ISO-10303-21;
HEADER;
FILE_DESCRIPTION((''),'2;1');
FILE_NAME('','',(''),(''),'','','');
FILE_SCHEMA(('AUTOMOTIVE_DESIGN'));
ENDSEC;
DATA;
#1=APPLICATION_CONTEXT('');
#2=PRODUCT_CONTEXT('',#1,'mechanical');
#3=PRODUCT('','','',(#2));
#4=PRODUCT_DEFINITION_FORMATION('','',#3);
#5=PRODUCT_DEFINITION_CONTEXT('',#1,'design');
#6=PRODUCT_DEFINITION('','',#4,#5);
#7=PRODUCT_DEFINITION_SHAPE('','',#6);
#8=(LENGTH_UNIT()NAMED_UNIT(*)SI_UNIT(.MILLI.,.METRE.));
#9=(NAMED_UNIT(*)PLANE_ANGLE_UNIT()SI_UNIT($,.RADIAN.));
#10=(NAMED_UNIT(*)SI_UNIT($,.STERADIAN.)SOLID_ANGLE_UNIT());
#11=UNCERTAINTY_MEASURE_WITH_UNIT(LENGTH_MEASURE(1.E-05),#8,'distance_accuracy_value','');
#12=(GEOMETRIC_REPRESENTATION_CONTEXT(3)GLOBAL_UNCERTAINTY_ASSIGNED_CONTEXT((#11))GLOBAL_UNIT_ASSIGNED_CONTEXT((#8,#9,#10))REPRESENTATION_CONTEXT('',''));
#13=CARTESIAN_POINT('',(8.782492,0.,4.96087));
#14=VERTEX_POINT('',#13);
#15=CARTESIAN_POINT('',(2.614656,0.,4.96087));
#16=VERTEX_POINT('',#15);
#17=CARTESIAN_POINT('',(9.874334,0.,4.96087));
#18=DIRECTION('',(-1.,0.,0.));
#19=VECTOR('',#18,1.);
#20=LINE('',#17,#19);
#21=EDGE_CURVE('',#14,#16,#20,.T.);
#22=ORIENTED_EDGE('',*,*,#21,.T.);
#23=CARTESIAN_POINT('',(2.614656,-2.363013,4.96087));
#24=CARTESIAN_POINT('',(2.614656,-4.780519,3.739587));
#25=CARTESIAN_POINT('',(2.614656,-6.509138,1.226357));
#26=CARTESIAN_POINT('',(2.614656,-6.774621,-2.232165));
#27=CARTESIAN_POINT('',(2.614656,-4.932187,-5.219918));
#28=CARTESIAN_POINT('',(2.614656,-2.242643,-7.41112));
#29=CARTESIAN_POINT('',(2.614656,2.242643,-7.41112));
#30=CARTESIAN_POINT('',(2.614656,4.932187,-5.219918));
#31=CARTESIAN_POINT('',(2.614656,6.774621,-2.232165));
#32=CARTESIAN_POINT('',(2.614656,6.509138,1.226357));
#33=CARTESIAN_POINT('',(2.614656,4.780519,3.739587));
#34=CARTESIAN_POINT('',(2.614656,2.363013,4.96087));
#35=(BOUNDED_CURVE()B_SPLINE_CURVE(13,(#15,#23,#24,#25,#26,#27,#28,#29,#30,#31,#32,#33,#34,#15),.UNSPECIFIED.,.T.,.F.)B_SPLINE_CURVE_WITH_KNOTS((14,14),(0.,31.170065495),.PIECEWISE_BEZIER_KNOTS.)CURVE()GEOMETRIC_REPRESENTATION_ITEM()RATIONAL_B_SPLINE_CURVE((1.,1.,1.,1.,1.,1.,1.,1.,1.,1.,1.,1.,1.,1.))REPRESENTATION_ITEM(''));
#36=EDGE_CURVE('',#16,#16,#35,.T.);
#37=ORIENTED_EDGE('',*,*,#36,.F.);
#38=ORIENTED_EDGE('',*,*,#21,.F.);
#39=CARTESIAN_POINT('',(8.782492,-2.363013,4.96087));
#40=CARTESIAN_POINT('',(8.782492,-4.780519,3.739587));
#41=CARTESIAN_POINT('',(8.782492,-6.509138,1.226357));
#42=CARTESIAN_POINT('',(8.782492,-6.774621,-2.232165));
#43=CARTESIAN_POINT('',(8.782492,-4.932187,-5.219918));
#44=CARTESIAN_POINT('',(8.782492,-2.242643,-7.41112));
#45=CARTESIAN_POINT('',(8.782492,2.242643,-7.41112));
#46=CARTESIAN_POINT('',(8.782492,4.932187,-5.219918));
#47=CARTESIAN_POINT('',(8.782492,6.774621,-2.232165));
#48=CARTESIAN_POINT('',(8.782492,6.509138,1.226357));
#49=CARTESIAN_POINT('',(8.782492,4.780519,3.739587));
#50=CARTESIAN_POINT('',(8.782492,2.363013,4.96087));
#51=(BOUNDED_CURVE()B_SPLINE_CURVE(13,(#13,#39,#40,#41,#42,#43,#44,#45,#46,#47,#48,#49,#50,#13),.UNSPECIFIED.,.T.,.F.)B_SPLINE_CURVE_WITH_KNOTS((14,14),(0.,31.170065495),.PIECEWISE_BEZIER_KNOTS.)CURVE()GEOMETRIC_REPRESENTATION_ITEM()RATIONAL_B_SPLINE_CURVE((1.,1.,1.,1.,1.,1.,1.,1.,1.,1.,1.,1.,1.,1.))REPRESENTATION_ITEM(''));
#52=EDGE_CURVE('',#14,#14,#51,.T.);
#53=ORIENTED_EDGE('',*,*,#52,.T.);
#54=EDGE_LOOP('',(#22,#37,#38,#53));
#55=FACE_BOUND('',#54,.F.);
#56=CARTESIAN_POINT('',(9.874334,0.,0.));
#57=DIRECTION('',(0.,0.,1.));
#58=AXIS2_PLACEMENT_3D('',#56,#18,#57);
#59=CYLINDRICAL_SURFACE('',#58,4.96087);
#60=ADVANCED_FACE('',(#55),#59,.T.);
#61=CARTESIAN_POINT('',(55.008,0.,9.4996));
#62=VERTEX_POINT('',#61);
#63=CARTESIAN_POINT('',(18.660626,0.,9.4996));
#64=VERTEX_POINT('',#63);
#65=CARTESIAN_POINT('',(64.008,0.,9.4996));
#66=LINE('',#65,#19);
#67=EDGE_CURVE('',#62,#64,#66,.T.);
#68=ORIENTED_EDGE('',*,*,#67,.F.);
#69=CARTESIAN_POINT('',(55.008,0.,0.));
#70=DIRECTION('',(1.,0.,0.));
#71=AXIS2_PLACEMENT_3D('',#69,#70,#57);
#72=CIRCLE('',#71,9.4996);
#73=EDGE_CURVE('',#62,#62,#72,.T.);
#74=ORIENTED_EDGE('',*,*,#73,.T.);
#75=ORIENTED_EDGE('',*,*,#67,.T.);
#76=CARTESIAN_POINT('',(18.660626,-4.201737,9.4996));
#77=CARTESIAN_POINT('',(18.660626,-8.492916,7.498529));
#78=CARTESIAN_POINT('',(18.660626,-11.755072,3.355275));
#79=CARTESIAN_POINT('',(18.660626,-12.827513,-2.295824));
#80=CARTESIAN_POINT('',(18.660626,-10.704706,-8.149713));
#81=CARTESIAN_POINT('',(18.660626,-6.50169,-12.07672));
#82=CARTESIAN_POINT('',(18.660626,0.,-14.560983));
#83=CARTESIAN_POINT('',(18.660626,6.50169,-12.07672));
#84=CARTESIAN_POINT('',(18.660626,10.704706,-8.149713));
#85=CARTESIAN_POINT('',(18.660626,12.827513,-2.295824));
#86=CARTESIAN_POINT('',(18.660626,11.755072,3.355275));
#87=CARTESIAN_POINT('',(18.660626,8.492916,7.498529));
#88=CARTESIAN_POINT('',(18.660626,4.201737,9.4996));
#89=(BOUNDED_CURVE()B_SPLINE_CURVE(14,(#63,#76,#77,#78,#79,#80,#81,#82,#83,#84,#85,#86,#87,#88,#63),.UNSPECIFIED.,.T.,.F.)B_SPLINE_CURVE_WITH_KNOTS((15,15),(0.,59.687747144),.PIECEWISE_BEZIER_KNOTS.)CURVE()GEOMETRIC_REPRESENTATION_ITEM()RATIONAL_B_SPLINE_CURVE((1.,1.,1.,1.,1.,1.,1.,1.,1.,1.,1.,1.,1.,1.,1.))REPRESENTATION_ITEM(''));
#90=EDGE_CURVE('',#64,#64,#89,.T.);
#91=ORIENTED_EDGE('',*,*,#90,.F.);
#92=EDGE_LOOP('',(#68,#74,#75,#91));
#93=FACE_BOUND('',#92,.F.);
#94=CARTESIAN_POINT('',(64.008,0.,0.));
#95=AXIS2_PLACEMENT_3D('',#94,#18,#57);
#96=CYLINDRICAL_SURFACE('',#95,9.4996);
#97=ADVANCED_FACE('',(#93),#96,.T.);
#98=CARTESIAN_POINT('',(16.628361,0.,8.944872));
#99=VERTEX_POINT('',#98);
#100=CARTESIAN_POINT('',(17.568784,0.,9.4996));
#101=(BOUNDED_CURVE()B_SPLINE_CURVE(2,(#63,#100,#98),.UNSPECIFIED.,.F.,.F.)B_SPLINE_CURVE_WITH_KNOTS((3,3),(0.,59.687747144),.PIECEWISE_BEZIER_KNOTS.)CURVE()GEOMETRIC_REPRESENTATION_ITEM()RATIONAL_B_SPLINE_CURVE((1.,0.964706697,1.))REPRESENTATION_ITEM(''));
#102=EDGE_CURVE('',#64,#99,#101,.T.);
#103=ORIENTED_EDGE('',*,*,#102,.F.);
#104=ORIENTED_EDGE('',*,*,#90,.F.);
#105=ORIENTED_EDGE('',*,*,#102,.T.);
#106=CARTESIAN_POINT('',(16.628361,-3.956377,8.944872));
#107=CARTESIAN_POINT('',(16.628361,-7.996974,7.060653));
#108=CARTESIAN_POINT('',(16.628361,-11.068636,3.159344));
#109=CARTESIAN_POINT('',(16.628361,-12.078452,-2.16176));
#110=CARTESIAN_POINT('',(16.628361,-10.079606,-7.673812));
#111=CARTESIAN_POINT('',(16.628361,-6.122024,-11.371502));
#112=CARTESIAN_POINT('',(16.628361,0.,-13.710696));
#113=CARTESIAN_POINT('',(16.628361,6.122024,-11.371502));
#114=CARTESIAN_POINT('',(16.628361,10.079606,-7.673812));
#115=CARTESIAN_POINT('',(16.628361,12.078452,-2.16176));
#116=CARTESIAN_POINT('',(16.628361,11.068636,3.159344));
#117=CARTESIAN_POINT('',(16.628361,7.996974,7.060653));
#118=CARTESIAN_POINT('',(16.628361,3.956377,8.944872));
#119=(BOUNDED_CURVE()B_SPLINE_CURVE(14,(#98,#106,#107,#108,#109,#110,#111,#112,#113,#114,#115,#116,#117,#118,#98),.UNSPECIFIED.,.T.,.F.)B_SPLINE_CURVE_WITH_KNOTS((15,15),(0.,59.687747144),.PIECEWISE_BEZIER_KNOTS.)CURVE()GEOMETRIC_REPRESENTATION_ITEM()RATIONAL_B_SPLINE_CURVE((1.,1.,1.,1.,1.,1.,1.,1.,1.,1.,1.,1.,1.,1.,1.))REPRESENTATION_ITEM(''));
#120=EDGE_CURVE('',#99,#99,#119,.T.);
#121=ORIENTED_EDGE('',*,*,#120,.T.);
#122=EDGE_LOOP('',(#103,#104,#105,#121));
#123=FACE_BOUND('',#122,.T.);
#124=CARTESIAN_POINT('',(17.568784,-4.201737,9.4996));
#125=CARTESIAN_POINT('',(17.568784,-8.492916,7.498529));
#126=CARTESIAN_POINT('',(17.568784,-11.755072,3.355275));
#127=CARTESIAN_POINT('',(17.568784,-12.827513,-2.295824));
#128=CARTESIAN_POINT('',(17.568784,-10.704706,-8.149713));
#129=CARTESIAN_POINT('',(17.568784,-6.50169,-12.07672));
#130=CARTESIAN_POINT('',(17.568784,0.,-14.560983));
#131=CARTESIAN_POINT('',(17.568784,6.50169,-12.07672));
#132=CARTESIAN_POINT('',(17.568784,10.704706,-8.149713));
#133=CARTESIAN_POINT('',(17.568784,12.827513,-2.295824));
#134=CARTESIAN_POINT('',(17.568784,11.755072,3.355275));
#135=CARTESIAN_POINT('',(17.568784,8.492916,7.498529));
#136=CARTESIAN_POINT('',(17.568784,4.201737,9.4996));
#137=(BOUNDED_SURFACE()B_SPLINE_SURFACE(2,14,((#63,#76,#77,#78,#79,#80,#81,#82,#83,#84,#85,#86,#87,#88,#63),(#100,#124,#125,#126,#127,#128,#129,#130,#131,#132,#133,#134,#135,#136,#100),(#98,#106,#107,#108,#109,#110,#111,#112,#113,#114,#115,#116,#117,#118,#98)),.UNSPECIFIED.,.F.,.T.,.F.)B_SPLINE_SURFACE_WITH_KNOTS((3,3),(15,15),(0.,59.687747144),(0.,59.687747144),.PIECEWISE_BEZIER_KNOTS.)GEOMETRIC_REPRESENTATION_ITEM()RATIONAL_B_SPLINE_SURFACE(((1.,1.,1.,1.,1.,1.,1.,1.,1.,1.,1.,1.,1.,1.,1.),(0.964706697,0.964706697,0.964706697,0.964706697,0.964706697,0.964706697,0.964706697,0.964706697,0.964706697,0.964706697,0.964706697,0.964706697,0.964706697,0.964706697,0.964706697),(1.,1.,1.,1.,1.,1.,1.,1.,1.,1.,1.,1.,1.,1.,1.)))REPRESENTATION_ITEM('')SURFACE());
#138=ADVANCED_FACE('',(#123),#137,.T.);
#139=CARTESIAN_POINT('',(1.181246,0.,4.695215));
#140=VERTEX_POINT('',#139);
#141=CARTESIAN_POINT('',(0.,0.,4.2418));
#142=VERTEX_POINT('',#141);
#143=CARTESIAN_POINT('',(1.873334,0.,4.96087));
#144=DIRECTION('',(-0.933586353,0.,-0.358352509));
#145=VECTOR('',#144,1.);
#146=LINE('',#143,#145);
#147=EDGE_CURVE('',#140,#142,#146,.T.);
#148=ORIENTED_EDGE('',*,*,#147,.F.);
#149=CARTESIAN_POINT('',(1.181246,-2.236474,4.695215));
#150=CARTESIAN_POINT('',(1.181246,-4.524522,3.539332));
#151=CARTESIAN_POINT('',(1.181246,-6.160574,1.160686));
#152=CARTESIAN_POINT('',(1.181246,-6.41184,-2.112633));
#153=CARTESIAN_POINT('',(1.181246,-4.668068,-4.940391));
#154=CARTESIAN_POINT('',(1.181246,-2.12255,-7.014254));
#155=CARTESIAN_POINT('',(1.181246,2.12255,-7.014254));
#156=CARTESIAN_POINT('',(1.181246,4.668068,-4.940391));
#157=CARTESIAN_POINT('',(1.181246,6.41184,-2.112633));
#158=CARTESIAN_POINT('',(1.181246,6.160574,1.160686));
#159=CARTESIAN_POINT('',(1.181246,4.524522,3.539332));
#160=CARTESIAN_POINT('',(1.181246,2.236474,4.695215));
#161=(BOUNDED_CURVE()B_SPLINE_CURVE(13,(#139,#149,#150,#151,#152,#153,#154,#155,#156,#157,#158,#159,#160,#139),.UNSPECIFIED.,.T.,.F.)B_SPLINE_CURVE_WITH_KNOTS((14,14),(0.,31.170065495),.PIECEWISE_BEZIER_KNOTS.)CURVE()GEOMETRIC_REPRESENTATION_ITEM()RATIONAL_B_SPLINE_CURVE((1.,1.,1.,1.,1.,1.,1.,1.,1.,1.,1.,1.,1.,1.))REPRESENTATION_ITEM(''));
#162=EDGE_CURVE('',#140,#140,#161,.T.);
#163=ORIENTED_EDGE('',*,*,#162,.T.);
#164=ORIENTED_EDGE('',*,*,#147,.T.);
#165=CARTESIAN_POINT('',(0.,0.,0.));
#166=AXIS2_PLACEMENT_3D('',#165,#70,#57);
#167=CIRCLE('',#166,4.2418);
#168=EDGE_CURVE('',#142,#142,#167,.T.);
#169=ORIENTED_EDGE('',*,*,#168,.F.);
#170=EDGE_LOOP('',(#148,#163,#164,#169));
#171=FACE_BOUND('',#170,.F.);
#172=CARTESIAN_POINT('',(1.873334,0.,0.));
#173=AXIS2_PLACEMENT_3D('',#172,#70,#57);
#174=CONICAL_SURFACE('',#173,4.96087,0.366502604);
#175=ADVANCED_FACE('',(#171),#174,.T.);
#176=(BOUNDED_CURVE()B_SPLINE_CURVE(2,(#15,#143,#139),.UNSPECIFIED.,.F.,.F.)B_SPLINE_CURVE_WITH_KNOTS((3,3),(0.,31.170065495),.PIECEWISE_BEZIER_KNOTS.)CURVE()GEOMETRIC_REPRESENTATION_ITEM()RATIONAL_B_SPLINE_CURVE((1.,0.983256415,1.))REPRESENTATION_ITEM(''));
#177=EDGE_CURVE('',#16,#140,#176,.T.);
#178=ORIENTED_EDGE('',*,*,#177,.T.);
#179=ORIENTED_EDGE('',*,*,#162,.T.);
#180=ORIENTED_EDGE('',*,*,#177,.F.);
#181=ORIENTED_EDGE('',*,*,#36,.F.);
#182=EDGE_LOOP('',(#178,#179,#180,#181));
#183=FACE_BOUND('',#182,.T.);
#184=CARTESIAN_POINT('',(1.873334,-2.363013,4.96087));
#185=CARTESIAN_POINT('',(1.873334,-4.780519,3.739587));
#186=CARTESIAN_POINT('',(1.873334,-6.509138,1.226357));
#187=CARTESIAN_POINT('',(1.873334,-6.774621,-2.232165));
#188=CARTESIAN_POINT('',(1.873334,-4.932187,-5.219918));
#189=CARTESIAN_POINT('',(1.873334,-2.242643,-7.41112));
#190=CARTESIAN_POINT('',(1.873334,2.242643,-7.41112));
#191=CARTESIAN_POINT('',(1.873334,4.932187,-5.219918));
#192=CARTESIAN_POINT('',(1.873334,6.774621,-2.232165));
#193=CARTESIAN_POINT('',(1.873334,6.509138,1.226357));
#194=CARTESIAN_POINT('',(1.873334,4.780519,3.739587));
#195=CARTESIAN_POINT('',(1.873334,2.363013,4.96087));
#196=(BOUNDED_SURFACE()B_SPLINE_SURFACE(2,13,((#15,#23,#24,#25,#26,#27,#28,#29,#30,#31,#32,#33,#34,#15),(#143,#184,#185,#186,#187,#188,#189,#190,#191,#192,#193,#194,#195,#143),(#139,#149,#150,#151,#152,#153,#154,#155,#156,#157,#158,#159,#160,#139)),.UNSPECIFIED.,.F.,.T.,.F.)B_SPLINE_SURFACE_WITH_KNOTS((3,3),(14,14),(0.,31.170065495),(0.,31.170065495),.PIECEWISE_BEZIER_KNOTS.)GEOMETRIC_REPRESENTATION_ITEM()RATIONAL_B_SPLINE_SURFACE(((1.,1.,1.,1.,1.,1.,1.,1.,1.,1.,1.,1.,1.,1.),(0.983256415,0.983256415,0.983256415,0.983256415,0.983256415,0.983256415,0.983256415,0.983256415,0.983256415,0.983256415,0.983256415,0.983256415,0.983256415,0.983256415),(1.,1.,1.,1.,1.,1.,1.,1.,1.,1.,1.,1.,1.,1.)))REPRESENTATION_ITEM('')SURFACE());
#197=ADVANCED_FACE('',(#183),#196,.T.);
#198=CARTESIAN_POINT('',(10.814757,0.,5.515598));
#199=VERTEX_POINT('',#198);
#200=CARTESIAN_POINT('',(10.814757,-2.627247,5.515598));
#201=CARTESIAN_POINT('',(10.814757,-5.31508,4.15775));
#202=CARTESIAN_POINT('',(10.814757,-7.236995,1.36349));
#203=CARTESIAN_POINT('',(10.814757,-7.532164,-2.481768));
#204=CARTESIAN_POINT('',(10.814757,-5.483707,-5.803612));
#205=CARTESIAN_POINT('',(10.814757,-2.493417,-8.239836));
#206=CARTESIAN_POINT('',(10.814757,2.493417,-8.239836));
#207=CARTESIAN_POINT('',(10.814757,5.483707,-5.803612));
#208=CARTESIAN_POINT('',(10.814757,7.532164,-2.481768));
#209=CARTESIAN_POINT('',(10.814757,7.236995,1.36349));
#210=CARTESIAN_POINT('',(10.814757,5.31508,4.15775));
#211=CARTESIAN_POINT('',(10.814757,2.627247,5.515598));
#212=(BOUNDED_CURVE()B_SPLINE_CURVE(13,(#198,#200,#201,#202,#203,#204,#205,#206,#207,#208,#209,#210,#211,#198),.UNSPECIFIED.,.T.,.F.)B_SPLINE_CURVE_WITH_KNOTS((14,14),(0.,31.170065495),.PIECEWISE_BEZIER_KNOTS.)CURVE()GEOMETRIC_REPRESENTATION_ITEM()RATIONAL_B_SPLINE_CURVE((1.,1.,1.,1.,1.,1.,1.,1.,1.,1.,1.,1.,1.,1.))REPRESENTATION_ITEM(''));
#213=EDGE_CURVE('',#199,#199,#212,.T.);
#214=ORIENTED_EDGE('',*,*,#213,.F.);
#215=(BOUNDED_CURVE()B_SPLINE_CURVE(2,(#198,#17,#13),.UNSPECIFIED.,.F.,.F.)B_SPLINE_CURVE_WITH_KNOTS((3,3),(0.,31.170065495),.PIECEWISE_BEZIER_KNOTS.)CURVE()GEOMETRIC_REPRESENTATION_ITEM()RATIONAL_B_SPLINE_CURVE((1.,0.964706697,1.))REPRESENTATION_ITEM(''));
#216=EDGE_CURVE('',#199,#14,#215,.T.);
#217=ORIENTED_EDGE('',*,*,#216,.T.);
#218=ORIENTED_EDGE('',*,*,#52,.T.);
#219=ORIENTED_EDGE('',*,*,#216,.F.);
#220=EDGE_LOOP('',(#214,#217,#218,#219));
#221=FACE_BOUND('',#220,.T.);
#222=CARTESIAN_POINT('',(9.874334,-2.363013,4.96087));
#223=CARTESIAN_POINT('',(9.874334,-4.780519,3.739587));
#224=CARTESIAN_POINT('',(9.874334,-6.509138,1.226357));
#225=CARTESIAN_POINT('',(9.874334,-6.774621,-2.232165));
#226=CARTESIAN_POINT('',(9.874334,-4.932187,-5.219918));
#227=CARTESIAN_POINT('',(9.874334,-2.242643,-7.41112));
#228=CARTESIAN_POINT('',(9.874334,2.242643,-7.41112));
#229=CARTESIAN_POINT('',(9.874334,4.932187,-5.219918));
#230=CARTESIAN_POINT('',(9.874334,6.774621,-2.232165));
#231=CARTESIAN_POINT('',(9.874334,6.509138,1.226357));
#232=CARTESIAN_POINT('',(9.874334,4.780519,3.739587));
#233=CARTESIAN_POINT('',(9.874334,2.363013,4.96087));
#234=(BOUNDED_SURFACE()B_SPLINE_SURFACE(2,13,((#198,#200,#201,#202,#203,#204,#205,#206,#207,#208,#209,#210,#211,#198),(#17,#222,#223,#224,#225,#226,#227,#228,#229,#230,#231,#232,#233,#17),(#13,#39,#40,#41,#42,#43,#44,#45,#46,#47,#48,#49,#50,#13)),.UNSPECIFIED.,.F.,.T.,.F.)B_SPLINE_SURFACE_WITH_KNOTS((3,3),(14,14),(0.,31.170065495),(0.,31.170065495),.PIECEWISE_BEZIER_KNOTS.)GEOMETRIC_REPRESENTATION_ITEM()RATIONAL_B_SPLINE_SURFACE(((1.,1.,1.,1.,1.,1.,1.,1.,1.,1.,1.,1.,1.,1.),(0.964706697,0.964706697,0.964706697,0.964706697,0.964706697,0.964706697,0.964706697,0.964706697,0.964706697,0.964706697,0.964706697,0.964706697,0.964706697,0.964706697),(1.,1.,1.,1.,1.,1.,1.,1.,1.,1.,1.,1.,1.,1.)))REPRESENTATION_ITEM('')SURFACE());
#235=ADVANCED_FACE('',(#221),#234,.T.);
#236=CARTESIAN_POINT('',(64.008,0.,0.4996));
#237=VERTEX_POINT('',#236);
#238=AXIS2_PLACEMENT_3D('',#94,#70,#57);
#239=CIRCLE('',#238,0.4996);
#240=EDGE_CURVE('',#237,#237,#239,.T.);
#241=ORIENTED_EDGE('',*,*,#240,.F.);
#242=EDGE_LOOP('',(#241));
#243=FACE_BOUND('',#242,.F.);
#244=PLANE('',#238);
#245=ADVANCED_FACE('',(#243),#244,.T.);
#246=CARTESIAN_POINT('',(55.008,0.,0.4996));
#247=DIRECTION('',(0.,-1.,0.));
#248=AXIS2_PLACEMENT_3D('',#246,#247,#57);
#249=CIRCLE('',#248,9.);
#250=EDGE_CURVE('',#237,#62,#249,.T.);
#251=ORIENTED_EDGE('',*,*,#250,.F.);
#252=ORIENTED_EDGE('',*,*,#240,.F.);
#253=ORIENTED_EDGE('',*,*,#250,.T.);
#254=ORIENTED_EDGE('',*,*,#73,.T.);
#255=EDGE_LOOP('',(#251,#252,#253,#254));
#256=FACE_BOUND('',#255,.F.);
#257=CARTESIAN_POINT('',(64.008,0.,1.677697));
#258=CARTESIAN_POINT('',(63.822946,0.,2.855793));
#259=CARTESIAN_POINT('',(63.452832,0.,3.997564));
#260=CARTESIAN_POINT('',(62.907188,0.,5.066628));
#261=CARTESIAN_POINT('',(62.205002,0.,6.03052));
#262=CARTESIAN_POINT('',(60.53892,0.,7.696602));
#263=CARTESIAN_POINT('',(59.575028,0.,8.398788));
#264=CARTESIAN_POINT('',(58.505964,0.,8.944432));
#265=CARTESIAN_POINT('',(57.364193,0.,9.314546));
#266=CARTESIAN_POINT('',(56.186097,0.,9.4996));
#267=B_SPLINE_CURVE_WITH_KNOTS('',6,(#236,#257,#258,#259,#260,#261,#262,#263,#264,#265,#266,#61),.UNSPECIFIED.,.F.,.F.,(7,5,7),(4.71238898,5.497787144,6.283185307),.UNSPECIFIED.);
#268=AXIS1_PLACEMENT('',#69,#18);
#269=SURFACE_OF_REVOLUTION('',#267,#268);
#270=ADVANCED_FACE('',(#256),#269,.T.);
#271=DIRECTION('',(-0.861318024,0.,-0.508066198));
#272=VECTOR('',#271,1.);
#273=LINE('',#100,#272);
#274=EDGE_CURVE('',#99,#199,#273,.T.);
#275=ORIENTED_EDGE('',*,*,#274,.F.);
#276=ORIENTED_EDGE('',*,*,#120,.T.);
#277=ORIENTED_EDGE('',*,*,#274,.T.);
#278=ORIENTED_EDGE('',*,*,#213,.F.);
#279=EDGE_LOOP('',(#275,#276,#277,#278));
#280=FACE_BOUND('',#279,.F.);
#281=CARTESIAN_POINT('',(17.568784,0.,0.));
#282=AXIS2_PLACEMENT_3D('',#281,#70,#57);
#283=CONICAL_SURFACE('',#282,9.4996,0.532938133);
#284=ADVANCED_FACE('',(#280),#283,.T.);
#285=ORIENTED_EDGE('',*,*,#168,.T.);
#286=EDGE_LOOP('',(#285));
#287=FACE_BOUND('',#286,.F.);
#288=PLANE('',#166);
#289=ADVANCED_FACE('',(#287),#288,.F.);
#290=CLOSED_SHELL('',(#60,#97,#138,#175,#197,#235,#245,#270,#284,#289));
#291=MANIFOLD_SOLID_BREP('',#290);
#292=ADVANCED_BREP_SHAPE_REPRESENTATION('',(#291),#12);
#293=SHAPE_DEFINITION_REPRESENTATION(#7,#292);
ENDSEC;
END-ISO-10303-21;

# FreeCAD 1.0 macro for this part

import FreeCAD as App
import Part
import Sketcher

V = App.Vector
Q = App.Units.Quantity


def edges_at(feature, points):
    """Names of the edges that pass closest to the given points."""
    edges = feature.Shape.Edges
    near = lambda p: min(range(len(edges)), key=lambda i: edges[i].distToShape(Part.Vertex(*p))[0])
    return sorted({f"Edge{near(p) + 1}" for p in points})

doc = App.newDocument("Part")
body = doc.addObject("PartDesign::Body", "Body")

# Sketch on XZ plane
sketch1 = body.newObject("Sketcher::SketchObject", "Sketch")
sketch1.AttachmentSupport = (doc.getObject("XZ_Plane"), [""])
sketch1.MapMode = "FlatFace"
sketch1.addGeometry(Part.LineSegment(V(0, 0, 0), V(64, 0, 0)), False)
sketch1.addGeometry(Part.LineSegment(V(64, 0, 0), V(64, 9.5, 0)), False)
sketch1.addGeometry(Part.LineSegment(V(64, 9.5, 0), V(17.6, 9.5, 0)), False)
sketch1.addGeometry(Part.LineSegment(V(17.6, 9.5, 0), V(9.9, 5, 0)), False)
sketch1.addGeometry(Part.LineSegment(V(9.9, 5, 0), V(1.9, 5, 0)), False)
sketch1.addGeometry(Part.LineSegment(V(1.9, 5, 0), V(0, 4.2, 0)), False)
sketch1.addGeometry(Part.LineSegment(V(0, 4.2, 0), V(0, 0, 0)), False)
sketch1.addConstraint(Sketcher.Constraint("Coincident", 0, 2, 1, 1))
sketch1.addConstraint(Sketcher.Constraint("Coincident", 1, 2, 2, 1))
sketch1.addConstraint(Sketcher.Constraint("Coincident", 2, 2, 3, 1))
sketch1.addConstraint(Sketcher.Constraint("Coincident", 3, 2, 4, 1))
sketch1.addConstraint(Sketcher.Constraint("Coincident", 4, 2, 5, 1))
sketch1.addConstraint(Sketcher.Constraint("Coincident", 5, 2, 6, 1))
sketch1.addConstraint(Sketcher.Constraint("Coincident", 6, 2, 0, 1))
sketch1.addConstraint(Sketcher.Constraint("Horizontal", 0))
sketch1.addConstraint(Sketcher.Constraint("Vertical", 1))
sketch1.addConstraint(Sketcher.Constraint("Horizontal", 2))
sketch1.addConstraint(Sketcher.Constraint("Horizontal", 4))
sketch1.addConstraint(Sketcher.Constraint("Vertical", 6))
sketch1.addConstraint(Sketcher.Constraint("Coincident", 6, 2, -1, 1))
sketch1.addConstraint(Sketcher.Constraint("DistanceX", 0, 1, 0, 2, Q("2.52 in")))
sketch1.addConstraint(Sketcher.Constraint("DistanceX", 4, 2, 4, 1, Q("0.315 in")))
sketch1.addConstraint(Sketcher.Constraint("DistanceY", 1, 1, 1, 2, Q("0.374 in")))
sketch1.addConstraint(Sketcher.Constraint("DistanceY", 6, 2, 6, 1, Q("0.167 in")))
sketch1.addConstraint(Sketcher.Constraint("Distance", 5, Q("0.079 in")))
sketch1.addConstraint(Sketcher.Constraint("DistanceX", 2, 2, 2, 1, 46.439216))
sketch1.addConstraint(Sketcher.Constraint("DistanceY", -1, 1, 3, 2, 4.96087))
revolution = body.newObject("PartDesign::Revolution", "Revolution")
revolution.Profile = sketch1
revolution.ReferenceAxis = (sketch1, ["H_Axis"])
revolution.Angle = 360
doc.recompute()

fillet = body.newObject("PartDesign::Fillet", "Fillet")
fillet.Base = (revolution, edges_at(revolution, [(64.008, 0, -9.5)]))
fillet.Radius = 9
doc.recompute()

fillet2 = body.newObject("PartDesign::Fillet", "Fillet001")
fillet2.Base = (fillet, edges_at(fillet, [(17.569, 0, -9.5), (9.874, 0, -4.961), (1.873, 0, -4.961)]))
fillet2.Radius = 4

doc.recompute()
